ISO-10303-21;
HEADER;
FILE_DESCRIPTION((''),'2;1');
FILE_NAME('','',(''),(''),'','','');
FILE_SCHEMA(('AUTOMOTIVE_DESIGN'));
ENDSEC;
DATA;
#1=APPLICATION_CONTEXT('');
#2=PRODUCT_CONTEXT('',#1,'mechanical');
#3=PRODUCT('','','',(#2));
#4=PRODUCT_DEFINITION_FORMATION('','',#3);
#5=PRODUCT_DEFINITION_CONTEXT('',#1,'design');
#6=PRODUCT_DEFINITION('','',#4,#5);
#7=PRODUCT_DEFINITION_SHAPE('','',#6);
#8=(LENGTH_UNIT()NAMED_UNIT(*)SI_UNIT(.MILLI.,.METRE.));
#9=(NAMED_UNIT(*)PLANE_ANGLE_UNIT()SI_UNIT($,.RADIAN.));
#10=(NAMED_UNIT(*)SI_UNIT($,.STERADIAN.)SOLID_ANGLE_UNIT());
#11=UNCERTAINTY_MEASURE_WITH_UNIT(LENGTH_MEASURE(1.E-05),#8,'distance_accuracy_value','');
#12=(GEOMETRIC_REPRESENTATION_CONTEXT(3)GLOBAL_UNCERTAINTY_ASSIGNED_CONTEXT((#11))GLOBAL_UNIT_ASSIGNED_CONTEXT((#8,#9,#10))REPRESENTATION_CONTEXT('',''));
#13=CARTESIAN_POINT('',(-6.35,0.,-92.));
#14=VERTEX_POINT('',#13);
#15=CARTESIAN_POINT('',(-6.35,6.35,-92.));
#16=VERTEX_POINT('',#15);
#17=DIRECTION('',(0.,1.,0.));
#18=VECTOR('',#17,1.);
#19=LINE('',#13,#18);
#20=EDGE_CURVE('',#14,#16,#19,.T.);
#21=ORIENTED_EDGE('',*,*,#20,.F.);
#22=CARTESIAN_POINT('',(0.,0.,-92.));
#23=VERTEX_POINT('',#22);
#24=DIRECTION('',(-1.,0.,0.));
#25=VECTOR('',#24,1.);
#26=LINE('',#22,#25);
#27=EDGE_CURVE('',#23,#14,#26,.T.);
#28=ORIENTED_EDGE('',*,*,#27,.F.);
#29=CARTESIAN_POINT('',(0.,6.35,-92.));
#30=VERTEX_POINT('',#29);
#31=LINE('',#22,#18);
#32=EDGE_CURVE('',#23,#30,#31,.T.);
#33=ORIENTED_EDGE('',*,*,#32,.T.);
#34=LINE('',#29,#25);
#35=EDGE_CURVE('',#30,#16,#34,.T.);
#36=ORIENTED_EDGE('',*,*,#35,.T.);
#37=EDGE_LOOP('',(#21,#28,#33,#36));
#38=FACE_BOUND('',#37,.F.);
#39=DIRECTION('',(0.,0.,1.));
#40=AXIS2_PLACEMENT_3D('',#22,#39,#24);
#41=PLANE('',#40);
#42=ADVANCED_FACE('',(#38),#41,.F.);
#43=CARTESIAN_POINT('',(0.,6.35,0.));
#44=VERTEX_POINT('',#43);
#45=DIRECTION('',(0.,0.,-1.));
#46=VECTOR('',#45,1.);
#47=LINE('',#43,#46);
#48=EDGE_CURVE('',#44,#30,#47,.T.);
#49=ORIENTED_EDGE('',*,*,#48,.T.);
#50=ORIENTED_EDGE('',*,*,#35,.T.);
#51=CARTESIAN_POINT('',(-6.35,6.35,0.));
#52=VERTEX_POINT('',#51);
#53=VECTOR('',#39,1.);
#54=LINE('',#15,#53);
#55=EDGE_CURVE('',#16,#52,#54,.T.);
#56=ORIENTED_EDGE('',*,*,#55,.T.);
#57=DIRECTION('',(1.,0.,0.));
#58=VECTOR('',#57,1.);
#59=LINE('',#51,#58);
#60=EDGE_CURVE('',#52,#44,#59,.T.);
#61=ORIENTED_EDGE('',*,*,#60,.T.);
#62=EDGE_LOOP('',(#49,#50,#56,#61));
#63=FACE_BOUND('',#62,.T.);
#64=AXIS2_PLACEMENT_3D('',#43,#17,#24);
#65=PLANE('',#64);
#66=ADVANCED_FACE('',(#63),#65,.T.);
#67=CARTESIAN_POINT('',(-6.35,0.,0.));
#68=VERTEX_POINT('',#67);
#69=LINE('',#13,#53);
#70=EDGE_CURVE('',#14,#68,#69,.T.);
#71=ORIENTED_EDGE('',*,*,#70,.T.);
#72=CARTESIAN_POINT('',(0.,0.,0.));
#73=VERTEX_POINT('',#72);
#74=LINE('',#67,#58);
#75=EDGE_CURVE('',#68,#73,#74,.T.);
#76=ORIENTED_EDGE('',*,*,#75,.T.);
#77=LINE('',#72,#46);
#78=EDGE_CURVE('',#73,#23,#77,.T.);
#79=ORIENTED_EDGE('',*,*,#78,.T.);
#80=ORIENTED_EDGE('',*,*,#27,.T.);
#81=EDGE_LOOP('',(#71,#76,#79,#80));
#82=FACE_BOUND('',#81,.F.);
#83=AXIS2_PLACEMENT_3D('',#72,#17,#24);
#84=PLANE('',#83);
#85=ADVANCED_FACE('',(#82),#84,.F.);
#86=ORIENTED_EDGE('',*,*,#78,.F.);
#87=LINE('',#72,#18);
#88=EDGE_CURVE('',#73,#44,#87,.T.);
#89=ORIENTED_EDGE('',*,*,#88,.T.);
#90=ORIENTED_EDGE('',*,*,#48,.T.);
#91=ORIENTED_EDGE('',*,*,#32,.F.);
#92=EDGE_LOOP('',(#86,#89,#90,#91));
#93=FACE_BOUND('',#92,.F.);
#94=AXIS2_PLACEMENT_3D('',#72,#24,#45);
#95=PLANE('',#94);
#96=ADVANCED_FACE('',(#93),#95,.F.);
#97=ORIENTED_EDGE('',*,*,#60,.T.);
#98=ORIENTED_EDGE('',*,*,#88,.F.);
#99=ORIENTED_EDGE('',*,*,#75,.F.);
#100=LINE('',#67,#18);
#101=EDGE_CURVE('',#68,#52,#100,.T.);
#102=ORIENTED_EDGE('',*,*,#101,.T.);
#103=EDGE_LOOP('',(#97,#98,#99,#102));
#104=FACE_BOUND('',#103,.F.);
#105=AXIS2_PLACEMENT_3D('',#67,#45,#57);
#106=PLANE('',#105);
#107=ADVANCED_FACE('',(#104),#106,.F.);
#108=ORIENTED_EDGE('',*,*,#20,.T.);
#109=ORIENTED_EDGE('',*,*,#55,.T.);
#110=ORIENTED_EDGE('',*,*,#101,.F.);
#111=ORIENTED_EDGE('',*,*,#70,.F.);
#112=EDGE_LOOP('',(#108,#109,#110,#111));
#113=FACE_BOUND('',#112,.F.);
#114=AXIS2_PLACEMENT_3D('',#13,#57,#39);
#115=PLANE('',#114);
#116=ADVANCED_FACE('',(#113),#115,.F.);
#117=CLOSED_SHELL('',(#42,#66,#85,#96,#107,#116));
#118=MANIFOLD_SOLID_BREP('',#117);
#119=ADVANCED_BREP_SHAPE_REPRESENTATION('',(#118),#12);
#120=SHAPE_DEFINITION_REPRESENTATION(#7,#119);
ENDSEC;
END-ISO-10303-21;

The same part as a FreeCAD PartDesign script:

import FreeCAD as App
import Part
import Sketcher

doc = App.newDocument("Part")
body = doc.addObject("PartDesign::Body", "Body")

sketch1 = body.newObject("Sketcher::SketchObject", "Sketch")
sketch1.AttachmentSupport = (doc.getObject("XZ_Plane"), [""])
sketch1.MapMode = "FlatFace"
sketch1.addGeometry([
    Part.LineSegment(App.Vector(-6, 0, 0), App.Vector(0, 0, 0)),
    Part.LineSegment(App.Vector(0, 0, 0), App.Vector(0, -92, 0)),
    Part.LineSegment(App.Vector(0, -92, 0), App.Vector(-6, -92, 0)),
    Part.LineSegment(App.Vector(-6, -92, 0), App.Vector(-6, 0, 0)),
], False)
sketch1.addConstraint([
    Sketcher.Constraint("Coincident", 0, 2, 1, 1),
    Sketcher.Constraint("Coincident", 1, 2, 2, 1),
    Sketcher.Constraint("Coincident", 2, 2, 3, 1),
    Sketcher.Constraint("Coincident", 3, 2, 0, 1),
    Sketcher.Constraint("Horizontal", 0),
    Sketcher.Constraint("Vertical", 1),
    Sketcher.Constraint("Horizontal", 2),
    Sketcher.Constraint("Vertical", 3),
    Sketcher.Constraint("Coincident", 0, 2, -1, 1),
    Sketcher.Constraint("DistanceY", 1, 2, 1, 1, 92.0),
    Sketcher.Constraint("DistanceX", 0, 1, 0, 2, 6.35),
])
pad1 = body.newObject("PartDesign::Pad", "Pad")
pad1.Profile = sketch1
pad1.Length = 6.35
pad1.Reversed = True

doc.recompute()
